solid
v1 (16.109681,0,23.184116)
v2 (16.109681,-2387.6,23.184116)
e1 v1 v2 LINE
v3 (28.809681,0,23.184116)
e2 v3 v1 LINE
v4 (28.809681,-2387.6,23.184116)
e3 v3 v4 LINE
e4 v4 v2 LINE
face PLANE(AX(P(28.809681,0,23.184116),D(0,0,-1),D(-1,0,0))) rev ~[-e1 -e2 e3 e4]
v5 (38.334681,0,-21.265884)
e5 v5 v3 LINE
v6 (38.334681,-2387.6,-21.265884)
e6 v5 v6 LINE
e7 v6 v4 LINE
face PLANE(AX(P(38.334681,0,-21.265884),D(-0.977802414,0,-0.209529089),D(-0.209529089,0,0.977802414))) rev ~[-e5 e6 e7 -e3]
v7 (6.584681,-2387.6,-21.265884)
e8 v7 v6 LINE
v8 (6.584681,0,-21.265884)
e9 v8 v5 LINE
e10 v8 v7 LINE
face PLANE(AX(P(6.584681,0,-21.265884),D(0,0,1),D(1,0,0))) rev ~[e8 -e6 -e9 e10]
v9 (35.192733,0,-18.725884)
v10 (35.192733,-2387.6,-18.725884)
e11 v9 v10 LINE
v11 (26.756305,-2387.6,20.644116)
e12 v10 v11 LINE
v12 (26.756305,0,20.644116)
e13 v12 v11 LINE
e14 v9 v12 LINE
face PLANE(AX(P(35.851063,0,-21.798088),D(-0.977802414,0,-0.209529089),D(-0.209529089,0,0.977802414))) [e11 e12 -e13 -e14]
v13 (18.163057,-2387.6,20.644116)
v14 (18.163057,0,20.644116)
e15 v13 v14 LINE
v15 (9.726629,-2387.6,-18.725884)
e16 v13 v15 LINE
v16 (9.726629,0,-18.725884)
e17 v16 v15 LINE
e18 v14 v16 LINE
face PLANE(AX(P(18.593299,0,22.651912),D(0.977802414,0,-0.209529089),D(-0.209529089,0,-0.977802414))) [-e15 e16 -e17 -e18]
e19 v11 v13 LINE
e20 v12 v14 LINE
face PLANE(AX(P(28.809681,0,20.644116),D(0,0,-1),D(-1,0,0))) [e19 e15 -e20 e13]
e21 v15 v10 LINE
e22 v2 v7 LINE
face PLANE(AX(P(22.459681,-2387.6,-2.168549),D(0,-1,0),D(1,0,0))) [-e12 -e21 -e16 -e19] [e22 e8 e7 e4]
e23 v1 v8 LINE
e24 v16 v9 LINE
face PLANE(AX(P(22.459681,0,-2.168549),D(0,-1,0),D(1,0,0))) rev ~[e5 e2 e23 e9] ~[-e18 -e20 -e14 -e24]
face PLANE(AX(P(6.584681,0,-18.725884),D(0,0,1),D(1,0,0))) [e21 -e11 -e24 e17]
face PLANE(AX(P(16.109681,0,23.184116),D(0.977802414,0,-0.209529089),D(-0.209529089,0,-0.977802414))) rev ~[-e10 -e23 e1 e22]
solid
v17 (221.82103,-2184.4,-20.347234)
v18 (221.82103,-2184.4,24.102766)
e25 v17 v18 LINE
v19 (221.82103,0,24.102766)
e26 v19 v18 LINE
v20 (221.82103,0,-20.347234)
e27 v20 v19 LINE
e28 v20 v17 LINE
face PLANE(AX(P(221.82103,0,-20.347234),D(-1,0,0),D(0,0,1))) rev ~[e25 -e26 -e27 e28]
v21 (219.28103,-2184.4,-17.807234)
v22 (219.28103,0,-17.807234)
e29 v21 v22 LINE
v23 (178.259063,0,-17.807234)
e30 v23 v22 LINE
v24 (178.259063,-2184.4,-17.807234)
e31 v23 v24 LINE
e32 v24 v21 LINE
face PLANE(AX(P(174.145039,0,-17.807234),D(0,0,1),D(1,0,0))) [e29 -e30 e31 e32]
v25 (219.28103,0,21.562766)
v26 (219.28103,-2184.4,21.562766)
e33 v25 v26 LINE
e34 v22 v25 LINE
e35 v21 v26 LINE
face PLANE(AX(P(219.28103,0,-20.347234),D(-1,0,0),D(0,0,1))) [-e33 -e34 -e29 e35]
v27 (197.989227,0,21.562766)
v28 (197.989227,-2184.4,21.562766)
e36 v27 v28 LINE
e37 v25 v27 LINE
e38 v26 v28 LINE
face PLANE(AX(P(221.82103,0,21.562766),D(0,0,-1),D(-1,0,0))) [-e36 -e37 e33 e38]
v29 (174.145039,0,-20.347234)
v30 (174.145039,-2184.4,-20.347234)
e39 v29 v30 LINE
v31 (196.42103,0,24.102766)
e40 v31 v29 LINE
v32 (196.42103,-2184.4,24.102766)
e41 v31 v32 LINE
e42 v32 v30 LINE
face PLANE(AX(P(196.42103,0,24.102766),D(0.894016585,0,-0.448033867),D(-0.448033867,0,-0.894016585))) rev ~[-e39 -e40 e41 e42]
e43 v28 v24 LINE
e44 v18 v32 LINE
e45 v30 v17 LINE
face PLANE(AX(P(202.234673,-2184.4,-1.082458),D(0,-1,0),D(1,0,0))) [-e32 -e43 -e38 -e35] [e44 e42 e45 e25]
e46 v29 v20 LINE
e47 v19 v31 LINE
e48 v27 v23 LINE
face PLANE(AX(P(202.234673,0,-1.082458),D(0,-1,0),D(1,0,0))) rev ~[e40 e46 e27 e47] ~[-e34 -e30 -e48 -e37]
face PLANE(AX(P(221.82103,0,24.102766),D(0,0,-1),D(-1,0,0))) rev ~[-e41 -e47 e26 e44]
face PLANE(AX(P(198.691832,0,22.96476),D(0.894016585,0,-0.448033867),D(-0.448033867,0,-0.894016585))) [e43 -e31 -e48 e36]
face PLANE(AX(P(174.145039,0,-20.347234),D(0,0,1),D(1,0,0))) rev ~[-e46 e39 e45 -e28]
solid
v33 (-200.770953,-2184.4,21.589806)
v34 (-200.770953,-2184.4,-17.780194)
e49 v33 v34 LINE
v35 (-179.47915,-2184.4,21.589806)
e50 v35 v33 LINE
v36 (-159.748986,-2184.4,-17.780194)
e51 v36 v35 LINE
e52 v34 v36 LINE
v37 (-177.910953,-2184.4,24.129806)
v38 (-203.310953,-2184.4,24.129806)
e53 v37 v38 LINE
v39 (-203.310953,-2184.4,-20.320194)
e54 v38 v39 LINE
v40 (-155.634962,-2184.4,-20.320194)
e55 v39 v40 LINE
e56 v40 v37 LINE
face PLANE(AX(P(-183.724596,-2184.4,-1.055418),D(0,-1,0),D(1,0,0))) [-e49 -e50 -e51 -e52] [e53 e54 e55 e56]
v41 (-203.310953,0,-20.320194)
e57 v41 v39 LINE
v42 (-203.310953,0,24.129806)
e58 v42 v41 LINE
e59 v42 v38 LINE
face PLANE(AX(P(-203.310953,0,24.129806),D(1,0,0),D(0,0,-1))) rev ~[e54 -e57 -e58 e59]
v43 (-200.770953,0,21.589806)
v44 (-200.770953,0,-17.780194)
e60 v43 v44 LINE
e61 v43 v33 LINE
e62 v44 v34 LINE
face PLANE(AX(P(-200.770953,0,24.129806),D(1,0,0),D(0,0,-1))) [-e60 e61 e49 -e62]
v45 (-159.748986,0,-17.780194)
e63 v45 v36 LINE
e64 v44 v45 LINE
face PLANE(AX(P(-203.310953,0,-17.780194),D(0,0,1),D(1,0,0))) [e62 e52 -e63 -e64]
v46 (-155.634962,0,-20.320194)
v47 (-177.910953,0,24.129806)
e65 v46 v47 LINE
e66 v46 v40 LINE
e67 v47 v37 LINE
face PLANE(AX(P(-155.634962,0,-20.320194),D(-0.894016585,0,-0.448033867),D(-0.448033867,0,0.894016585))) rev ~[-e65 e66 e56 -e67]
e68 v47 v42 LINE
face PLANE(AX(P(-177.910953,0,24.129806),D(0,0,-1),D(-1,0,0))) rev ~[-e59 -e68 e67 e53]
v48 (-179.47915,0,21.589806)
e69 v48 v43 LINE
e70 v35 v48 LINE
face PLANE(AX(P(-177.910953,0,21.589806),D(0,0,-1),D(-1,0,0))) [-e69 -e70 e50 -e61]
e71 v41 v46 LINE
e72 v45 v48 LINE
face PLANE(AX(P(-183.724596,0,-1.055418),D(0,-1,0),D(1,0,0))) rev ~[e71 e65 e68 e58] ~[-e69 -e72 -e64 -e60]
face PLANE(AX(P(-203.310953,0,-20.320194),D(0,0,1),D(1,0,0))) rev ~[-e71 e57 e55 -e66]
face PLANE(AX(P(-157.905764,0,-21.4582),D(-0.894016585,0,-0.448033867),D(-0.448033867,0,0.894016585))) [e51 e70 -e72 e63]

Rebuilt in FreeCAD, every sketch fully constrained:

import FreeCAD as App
import Part
import Sketcher
Q = App.Units.Quantity


def faces_at(feature, points):
    """Names of the faces that lie closest to the given points."""
    faces = feature.Shape.Faces
    near = lambda p: min(range(len(faces)), key=lambda i: faces[i].distToShape(Part.Vertex(*p))[0])
    return sorted({f"Face{near(p) + 1}" for p in points})

doc = App.newDocument("Part")
body = doc.addObject("PartDesign::Body", "Body")

sketch1 = doc.addObject("Sketcher::SketchObject", "Sketch")
body.addObject(sketch1)
sketch1.AttachmentSupport = (doc.XZ_Plane, [""])
sketch1.MapMode = "FlatFace"
sketch1.addGeometry(Part.LineSegment(App.Vector(-177.910953, 24.129806, 0), App.Vector(-203.310953, 24.129806, 0)), False)
sketch1.addGeometry(Part.LineSegment(App.Vector(-203.310953, 24.129806, 0), App.Vector(-203.310953, -20.320194, 0)), False)
sketch1.addGeometry(Part.LineSegment(App.Vector(-203.310953, -20.320194, 0), App.Vector(-155.634962, -20.320194, 0)), False)
sketch1.addGeometry(Part.LineSegment(App.Vector(-155.634962, -20.320194, 0), App.Vector(-177.910953, 24.129806, 0)), False)
sketch1.addConstraint(Sketcher.Constraint("Coincident", 0, 2, 1, 1))
sketch1.addConstraint(Sketcher.Constraint("Coincident", 1, 2, 2, 1))
sketch1.addConstraint(Sketcher.Constraint("Coincident", 2, 2, 3, 1))
sketch1.addConstraint(Sketcher.Constraint("Coincident", 3, 2, 0, 1))
sketch1.addConstraint(Sketcher.Constraint("Horizontal", 0))
sketch1.addConstraint(Sketcher.Constraint("Vertical", 1))
sketch1.addConstraint(Sketcher.Constraint("Horizontal", 2))
sketch1.addConstraint(Sketcher.Constraint("DistanceX", 0, 2, 0, 1, Q("1 in")))
sketch1.addConstraint(Sketcher.Constraint("DistanceY", 1, 2, 1, 1, Q("1.75 in")))
sketch1.addConstraint(Sketcher.Constraint("DistanceX", 2, 1, 2, 2, Q("47.675991 mm")))
sketch1.addConstraint(Sketcher.Constraint("DistanceX", 2, 2, -1, 1, Q("155.634962 mm")))
sketch1.addConstraint(Sketcher.Constraint("DistanceY", -1, 1, 0, 2, Q("24.129806 mm")))
pad1 = doc.addObject("PartDesign::Pad", "Pad")
body.addObject(pad1)
pad1.Profile = sketch1
pad1.Length = Q("86 in")
doc.recompute()

thickness = doc.addObject("PartDesign::Thickness", "Thickness")
body.addObject(thickness)
thickness.Base = (pad1, faces_at(pad1, [(-179.473, -2184.4, 1.905), (-179.473, 0, 1.905)]))
thickness.Value = Q("0.1 in")
thickness.Reversed = True
thickness.Join = "Arc"
body2 = doc.addObject("PartDesign::Body", "Body001")

sketch2 = doc.addObject("Sketcher::SketchObject", "Sketch001")
body2.addObject(sketch2)
sketch2.AttachmentSupport = (doc.getObject("XZ_Plane001"), [""])
sketch2.MapMode = "FlatFace"
sketch2.addGeometry(Part.LineSegment(App.Vector(16.109681, 23.184116, 0), App.Vector(6.584681, -21.265884, 0)), False)
sketch2.addGeometry(Part.LineSegment(App.Vector(6.584681, -21.265884, 0), App.Vector(38.334681, -21.265884, 0)), False)
sketch2.addGeometry(Part.LineSegment(App.Vector(38.334681, -21.265884, 0), App.Vector(28.809681, 23.184116, 0)), False)
sketch2.addGeometry(Part.LineSegment(App.Vector(28.809681, 23.184116, 0), App.Vector(16.109681, 23.184116, 0)), False)
sketch2.addConstraint(Sketcher.Constraint("Coincident", 0, 2, 1, 1))
sketch2.addConstraint(Sketcher.Constraint("Coincident", 1, 2, 2, 1))
sketch2.addConstraint(Sketcher.Constraint("Coincident", 2, 2, 3, 1))
sketch2.addConstraint(Sketcher.Constraint("Coincident", 3, 2, 0, 1))
sketch2.addConstraint(Sketcher.Constraint("Horizontal", 1))
sketch2.addConstraint(Sketcher.Constraint("Horizontal", 3))
sketch2.addConstraint(Sketcher.Constraint("Equal", 0, 2))
sketch2.addConstraint(Sketcher.Constraint("DistanceX", 3, 2, 3, 1, Q("0.5 in")))
sketch2.addConstraint(Sketcher.Constraint("DistanceX", 1, 1, 1, 2, Q("1.25 in")))
sketch2.addConstraint(Sketcher.Constraint("DistanceY", 1, 2, 2, 2, Q("1.75 in")))
sketch2.addConstraint(Sketcher.Constraint("DistanceX", -1, 1, 0, 2, Q("6.584681 mm")))
sketch2.addConstraint(Sketcher.Constraint("DistanceY", 0, 2, -1, 1, Q("21.265884 mm")))
pad2 = doc.addObject("PartDesign::Pad", "Pad001")
body2.addObject(pad2)
pad2.Profile = sketch2
pad2.Length = Q("94 in")
doc.recompute()

thickness2 = doc.addObject("PartDesign::Thickness", "Thickness001")
body2.addObject(thickness2)
thickness2.Base = (pad2, faces_at(pad2, [(22.46, 0, 0.959), (22.46, -2387.6, 0.959)]))
thickness2.Value = Q("0.1 in")
thickness2.Reversed = True
thickness2.Join = "Arc"
body3 = doc.addObject("PartDesign::Body", "Body002")

sketch3 = doc.addObject("Sketcher::SketchObject", "Sketch002")
body3.addObject(sketch3)
sketch3.AttachmentSupport = (doc.getObject("XZ_Plane002"), [""])
sketch3.MapMode = "FlatFace"
sketch3.addGeometry(Part.LineSegment(App.Vector(221.82103, -20.347234, 0), App.Vector(221.82103, 24.102766, 0)), False)
sketch3.addGeometry(Part.LineSegment(App.Vector(221.82103, 24.102766, 0), App.Vector(196.42103, 24.102766, 0)), False)
sketch3.addGeometry(Part.LineSegment(App.Vector(196.42103, 24.102766, 0), App.Vector(174.145039, -20.347234, 0)), False)
sketch3.addGeometry(Part.LineSegment(App.Vector(174.145039, -20.347234, 0), App.Vector(221.82103, -20.347234, 0)), False)
sketch3.addConstraint(Sketcher.Constraint("Coincident", 0, 2, 1, 1))
sketch3.addConstraint(Sketcher.Constraint("Coincident", 1, 2, 2, 1))
sketch3.addConstraint(Sketcher.Constraint("Coincident", 2, 2, 3, 1))
sketch3.addConstraint(Sketcher.Constraint("Coincident", 3, 2, 0, 1))
sketch3.addConstraint(Sketcher.Constraint("Vertical", 0))
sketch3.addConstraint(Sketcher.Constraint("Horizontal", 1))
sketch3.addConstraint(Sketcher.Constraint("Horizontal", 3))
sketch3.addConstraint(Sketcher.Constraint("DistanceX", 1, 2, 1, 1, Q("1 in")))
sketch3.addConstraint(Sketcher.Constraint("DistanceY", 0, 1, 0, 2, Q("1.75 in")))
sketch3.addConstraint(Sketcher.Constraint("DistanceX", 3, 1, 3, 2, Q("47.675991 mm")))
sketch3.addConstraint(Sketcher.Constraint("DistanceX", -1, 1, 0, 2, Q("221.82103 mm")))
sketch3.addConstraint(Sketcher.Constraint("DistanceY", -1, 1, 0, 2, Q("24.102766 mm")))
pad3 = doc.addObject("PartDesign::Pad", "Pad002")
body3.addObject(pad3)
pad3.Profile = sketch3
pad3.Length = Q("86 in")
doc.recompute()

thickness3 = doc.addObject("PartDesign::Thickness", "Thickness002")
body3.addObject(thickness3)
thickness3.Base = (pad3, faces_at(pad3, [(197.983, -2184.4, 1.878), (197.983, 0, 1.878)]))
thickness3.Value = Q("0.1 in")
thickness3.Reversed = True
thickness3.Join = "Arc"

doc.recompute()
